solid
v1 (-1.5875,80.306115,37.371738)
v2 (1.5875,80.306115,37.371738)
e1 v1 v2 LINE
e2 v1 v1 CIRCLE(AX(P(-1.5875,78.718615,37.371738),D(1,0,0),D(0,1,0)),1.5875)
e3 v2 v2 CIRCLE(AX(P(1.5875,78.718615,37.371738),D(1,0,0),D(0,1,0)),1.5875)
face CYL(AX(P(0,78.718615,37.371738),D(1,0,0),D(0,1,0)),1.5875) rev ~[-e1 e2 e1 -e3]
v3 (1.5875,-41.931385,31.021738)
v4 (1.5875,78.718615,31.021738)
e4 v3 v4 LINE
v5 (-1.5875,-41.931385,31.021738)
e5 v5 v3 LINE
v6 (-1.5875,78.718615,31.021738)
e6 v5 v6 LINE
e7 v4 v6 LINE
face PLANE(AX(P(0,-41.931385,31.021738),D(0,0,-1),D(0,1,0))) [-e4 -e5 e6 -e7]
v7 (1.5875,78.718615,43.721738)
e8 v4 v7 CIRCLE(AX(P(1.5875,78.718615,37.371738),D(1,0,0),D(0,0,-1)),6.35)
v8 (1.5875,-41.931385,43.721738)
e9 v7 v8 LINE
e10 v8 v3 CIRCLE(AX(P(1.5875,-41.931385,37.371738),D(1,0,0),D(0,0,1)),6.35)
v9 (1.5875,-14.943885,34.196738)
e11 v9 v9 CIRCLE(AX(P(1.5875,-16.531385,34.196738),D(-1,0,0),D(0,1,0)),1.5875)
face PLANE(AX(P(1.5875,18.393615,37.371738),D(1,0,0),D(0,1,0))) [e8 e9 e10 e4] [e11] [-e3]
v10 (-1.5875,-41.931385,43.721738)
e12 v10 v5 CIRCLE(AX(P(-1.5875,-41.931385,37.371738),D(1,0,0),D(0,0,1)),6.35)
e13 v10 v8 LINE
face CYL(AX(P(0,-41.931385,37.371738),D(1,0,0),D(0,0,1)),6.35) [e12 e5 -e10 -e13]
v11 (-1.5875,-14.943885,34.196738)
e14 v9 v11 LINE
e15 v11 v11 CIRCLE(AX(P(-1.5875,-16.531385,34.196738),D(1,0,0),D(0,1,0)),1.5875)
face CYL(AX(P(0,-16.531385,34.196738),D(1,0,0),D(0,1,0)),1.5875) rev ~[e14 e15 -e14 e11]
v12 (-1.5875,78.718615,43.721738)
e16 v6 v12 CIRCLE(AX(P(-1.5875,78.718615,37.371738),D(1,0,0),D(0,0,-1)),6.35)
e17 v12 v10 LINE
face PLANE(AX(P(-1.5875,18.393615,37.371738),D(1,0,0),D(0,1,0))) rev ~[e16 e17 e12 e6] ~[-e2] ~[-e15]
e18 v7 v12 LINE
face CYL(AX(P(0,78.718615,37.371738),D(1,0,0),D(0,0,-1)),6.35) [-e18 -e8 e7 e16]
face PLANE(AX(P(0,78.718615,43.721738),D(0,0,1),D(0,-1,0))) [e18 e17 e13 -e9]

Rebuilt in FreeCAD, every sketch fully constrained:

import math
import FreeCAD as App
import Part
import Sketcher

V = App.Vector
Q = App.Units.Quantity

doc = App.newDocument("Part")
params = doc.addObject("Spreadsheet::Sheet", "Params")
for row, (alias, value) in enumerate([
    ("sketch1_radius", "0.25 in"),
    ("sketch1_width", "4.75 in"),
    ("pad1_length", "0.125 in"),
    ("sketch2_diameter", "0.125 in"),
    ("pocket1_length", "1 in"),
], start=1):
    params.set(f"A{row}", alias)
    params.set(f"B{row}", "=" + value)
    params.setAlias(f"B{row}", alias)

body = doc.addObject("PartDesign::Body", "Body")

# Sketch on YZ plane
sketch1 = doc.addObject("Sketcher::SketchObject", "Sketch")
body.addObject(sketch1)
sketch1.AttachmentSupport = (doc.YZ_Plane, [""])
sketch1.MapMode = "FlatFace"
sketch1.addGeometry(Part.LineSegment(V(78.718615, 43.721738, 0), V(-41.931385, 43.721738, 0)), False)
sketch1.addGeometry(Part.ArcOfCircle(Part.Circle(V(-41.931385, 37.371738, 0), V(0, 0, 1), 6.35), math.radians(90), math.radians(270)), False)
sketch1.addGeometry(Part.LineSegment(V(-41.931385, 31.021738, 0), V(78.718615, 31.021738, 0)), False)
sketch1.addGeometry(Part.ArcOfCircle(Part.Circle(V(78.718615, 37.371738, 0), V(0, 0, 1), 6.35), math.radians(-90), math.radians(90)), False)
sketch1.addConstraint(Sketcher.Constraint("Tangent", 0, 2, 1, 1))
sketch1.addConstraint(Sketcher.Constraint("Tangent", 1, 2, 2, 1))
sketch1.addConstraint(Sketcher.Constraint("Tangent", 2, 2, 3, 1))
sketch1.addConstraint(Sketcher.Constraint("Tangent", 3, 2, 0, 1))
sketch1.addConstraint(Sketcher.Constraint("Horizontal", 0))
sketch1.addConstraint(Sketcher.Constraint("Horizontal", 2))
sketch1.addConstraint(Sketcher.Constraint("Radius", 1, Q("0.25 in")))
sketch1.addConstraint(Sketcher.Constraint("DistanceX", 0, 2, 0, 1, Q("4.75 in")))
sketch1.addConstraint(Sketcher.Constraint("DistanceY", -1, 1, 0, 2, Q("43.721738 mm")))
sketch1.addConstraint(Sketcher.Constraint("DistanceX", 1, 3, -1, 1, Q("41.931385 mm")))
sketch1.setExpression("Constraints[6]", "Params.sketch1_radius")
sketch1.setExpression("Constraints[7]", "Params.sketch1_width")
pad1 = doc.addObject("PartDesign::Pad", "Pad")
body.addObject(pad1)
pad1.Profile = sketch1
pad1.setExpression("Length", "Params.pad1_length")
pad1.Midplane = True

# Sketch on YZ plane
sketch2 = doc.addObject("Sketcher::SketchObject", "Sketch001")
body.addObject(sketch2)
sketch2.AttachmentSupport = (doc.YZ_Plane, [""])
sketch2.MapMode = "FlatFace"
sketch2.addGeometry(Part.Circle(V(-16.531385, 34.196738, 0), V(0, 0, 1), 1.5875), False)
sketch2.addGeometry(Part.Circle(V(78.718615, 37.371738, 0), V(0, 0, 1), 1.5875), False)
sketch2.addConstraint(Sketcher.Constraint("Equal", 0, 1))
sketch2.addConstraint(Sketcher.Constraint("Diameter", 0, Q("0.125 in")))
sketch2.addConstraint(Sketcher.Constraint("DistanceX", 0, 3, 1, 3, Q("3.75 in")))
sketch2.addConstraint(Sketcher.Constraint("DistanceY", 0, 3, 1, 3, Q("0.125 in")))
sketch2.addConstraint(Sketcher.Constraint("DistanceY", -1, 1, 0, 3, Q("34.196738 mm")))
sketch2.addConstraint(Sketcher.Constraint("DistanceX", 0, 3, -1, 1, Q("16.531385 mm")))
sketch2.setExpression("Constraints[1]", "Params.sketch2_diameter")
pocket1 = doc.addObject("PartDesign::Pocket", "Pocket")
body.addObject(pocket1)
pocket1.Profile = sketch2
pocket1.setExpression("Length", "Params.pocket1_length")
pocket1.Midplane = True

doc.recompute()
